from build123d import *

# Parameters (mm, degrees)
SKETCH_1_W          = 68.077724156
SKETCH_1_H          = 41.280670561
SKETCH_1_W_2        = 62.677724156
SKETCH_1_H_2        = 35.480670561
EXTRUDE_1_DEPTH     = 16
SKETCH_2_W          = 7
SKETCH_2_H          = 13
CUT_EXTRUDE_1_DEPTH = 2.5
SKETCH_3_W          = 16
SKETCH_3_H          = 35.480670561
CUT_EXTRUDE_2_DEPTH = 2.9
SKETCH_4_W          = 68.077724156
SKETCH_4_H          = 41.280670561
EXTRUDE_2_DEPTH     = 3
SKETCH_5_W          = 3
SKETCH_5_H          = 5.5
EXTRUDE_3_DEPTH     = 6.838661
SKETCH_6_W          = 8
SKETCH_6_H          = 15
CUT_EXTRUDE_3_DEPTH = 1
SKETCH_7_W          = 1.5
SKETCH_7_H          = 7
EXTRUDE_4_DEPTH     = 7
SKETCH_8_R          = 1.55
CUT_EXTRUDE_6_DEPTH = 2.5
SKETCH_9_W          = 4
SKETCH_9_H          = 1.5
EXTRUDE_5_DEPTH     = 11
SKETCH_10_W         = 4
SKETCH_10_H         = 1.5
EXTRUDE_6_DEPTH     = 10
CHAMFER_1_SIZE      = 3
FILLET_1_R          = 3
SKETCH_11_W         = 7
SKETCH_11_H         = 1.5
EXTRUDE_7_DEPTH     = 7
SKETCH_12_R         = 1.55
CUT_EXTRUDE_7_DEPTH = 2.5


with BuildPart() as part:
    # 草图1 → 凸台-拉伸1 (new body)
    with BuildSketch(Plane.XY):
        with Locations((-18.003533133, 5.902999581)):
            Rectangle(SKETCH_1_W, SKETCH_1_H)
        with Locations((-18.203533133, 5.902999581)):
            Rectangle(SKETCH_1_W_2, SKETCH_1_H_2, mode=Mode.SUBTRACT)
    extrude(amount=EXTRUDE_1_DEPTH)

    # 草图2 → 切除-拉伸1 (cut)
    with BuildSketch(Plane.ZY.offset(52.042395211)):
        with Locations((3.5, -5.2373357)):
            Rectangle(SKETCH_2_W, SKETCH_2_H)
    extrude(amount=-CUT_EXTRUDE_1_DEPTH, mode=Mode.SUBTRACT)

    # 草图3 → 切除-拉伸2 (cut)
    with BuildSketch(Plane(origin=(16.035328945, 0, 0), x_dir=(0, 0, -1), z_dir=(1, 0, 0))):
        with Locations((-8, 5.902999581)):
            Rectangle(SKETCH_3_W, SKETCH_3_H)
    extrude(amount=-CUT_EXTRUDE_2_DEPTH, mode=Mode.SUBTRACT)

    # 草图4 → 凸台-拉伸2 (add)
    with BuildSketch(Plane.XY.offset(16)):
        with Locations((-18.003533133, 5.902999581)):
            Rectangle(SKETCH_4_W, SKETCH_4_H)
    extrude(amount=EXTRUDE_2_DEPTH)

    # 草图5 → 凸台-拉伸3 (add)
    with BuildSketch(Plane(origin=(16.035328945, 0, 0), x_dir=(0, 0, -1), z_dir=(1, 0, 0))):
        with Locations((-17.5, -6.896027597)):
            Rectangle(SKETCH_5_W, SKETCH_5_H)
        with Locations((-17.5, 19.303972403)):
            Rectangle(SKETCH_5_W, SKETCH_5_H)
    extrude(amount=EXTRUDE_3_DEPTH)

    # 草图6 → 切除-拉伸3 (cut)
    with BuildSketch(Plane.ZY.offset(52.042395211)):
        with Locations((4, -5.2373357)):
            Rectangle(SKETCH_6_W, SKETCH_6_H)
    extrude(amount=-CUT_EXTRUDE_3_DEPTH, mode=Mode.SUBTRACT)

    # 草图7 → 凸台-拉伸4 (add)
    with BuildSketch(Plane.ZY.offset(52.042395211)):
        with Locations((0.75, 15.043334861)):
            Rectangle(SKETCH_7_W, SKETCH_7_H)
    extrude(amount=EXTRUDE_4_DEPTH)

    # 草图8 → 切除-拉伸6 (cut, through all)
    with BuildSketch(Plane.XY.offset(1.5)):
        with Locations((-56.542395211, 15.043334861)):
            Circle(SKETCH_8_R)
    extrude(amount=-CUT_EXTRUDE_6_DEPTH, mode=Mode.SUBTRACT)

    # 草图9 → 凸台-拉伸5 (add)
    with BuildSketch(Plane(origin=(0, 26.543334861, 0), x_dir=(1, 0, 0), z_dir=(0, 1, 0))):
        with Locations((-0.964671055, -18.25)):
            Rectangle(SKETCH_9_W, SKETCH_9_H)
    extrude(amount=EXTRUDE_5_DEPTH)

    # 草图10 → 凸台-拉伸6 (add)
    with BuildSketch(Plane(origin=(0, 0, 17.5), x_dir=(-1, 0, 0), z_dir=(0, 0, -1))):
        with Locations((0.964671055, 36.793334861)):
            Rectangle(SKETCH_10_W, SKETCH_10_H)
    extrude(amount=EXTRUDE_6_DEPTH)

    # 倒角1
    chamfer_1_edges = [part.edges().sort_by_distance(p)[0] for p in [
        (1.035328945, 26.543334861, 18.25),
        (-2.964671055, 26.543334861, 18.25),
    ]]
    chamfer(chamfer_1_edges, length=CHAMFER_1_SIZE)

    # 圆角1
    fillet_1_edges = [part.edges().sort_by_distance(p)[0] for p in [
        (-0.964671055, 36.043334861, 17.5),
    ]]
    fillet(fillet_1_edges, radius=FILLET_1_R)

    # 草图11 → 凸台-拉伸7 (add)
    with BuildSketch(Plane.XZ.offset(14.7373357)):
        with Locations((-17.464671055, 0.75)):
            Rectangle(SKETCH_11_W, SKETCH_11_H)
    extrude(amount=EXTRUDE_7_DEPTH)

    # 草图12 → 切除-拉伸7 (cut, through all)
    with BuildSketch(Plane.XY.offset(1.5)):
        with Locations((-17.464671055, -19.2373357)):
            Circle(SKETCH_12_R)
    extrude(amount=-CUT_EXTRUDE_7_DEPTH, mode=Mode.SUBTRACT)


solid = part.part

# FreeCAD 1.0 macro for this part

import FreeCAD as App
import Part
import Sketcher
Q = App.Units.Quantity


def edges_at(feature, points):
    """Names of the edges that pass closest to the given points."""
    edges = feature.Shape.Edges
    near = lambda p: min(range(len(edges)), key=lambda i: edges[i].distToShape(Part.Vertex(*p))[0])
    return sorted({f"Edge{near(p) + 1}" for p in points})

doc = App.newDocument("Part")
body = doc.addObject("PartDesign::Body", "Body")

# Sketch on XY plane
sketch1 = doc.addObject("Sketcher::SketchObject", "Sketch")
body.addObject(sketch1)
sketch1.AttachmentSupport = (doc.XY_Plane, [""])
sketch1.MapMode = "FlatFace"
sketch1.addGeometry(Part.LineSegment(App.Vector(-52, 27, 0), App.Vector(-52, -15, 0)), False)
sketch1.addGeometry(Part.LineSegment(App.Vector(-52, -15, 0), App.Vector(16, -15, 0)), False)
sketch1.addGeometry(Part.LineSegment(App.Vector(16, -15, 0), App.Vector(16, 27, 0)), False)
sketch1.addGeometry(Part.LineSegment(App.Vector(16, 27, 0), App.Vector(-52, 27, 0)), False)
sketch1.addGeometry(Part.LineSegment(App.Vector(13, -12, 0), App.Vector(-50, -12, 0)), False)
sketch1.addGeometry(Part.LineSegment(App.Vector(-50, -12, 0), App.Vector(-50, 24, 0)), False)
sketch1.addGeometry(Part.LineSegment(App.Vector(-50, 24, 0), App.Vector(13, 24, 0)), False)
sketch1.addGeometry(Part.LineSegment(App.Vector(13, 24, 0), App.Vector(13, -12, 0)), False)
sketch1.addConstraint(Sketcher.Constraint("Coincident", 0, 2, 1, 1))
sketch1.addConstraint(Sketcher.Constraint("Coincident", 1, 2, 2, 1))
sketch1.addConstraint(Sketcher.Constraint("Coincident", 2, 2, 3, 1))
sketch1.addConstraint(Sketcher.Constraint("Coincident", 3, 2, 0, 1))
sketch1.addConstraint(Sketcher.Constraint("Coincident", 4, 2, 5, 1))
sketch1.addConstraint(Sketcher.Constraint("Coincident", 5, 2, 6, 1))
sketch1.addConstraint(Sketcher.Constraint("Coincident", 6, 2, 7, 1))
sketch1.addConstraint(Sketcher.Constraint("Coincident", 7, 2, 4, 1))
sketch1.addConstraint(Sketcher.Constraint("Vertical", 0))
sketch1.addConstraint(Sketcher.Constraint("Horizontal", 1))
sketch1.addConstraint(Sketcher.Constraint("Vertical", 2))
sketch1.addConstraint(Sketcher.Constraint("Horizontal", 3))
sketch1.addConstraint(Sketcher.Constraint("Horizontal", 4))
sketch1.addConstraint(Sketcher.Constraint("Vertical", 5))
sketch1.addConstraint(Sketcher.Constraint("Horizontal", 6))
sketch1.addConstraint(Sketcher.Constraint("Vertical", 7))
sketch1.addConstraint(Sketcher.Constraint("DistanceX", 0, 2, 4, 2, Q("2.5 mm")))
sketch1.addConstraint(Sketcher.Constraint("DistanceY", 0, 2, 4, 2, Q("2.9 mm")))
sketch1.addConstraint(Sketcher.Constraint("DistanceY", 5, 2, 3, 2, Q("2.9 mm")))
sketch1.addConstraint(Sketcher.Constraint("DistanceX", 6, 2, 2, 2, Q("2.9 mm")))
sketch1.addConstraint(Sketcher.Constraint("DistanceY", 0, 2, 0, 1, Q("41.280671 mm")))
sketch1.addConstraint(Sketcher.Constraint("DistanceX", 1, 1, 1, 2, Q("68.077724 mm")))
sketch1.addConstraint(Sketcher.Constraint("DistanceX", -1, 1, 1, 2, Q("16.035329 mm")))
sketch1.addConstraint(Sketcher.Constraint("DistanceY", 0, 2, -1, 1, Q("14.737336 mm")))
pad1 = doc.addObject("PartDesign::Pad", "Pad")
body.addObject(pad1)
pad1.Profile = sketch1
pad1.Length = 16

# Sketch on YZ plane
sketch2 = doc.addObject("Sketcher::SketchObject", "Sketch001")
body.addObject(sketch2)
sketch2.AttachmentSupport = (doc.YZ_Plane, [""])
sketch2.MapMode = "FlatFace"
sketch2.AttachmentOffset = App.Placement(App.Vector(0, 0, -52.042395), App.Rotation())
sketch2.addGeometry(Part.LineSegment(App.Vector(1, 0, 0), App.Vector(-12, 0, 0)), False)
sketch2.addGeometry(Part.LineSegment(App.Vector(-12, 0, 0), App.Vector(-12, 7, 0)), False)
sketch2.addGeometry(Part.LineSegment(App.Vector(-12, 7, 0), App.Vector(1, 7, 0)), False)
sketch2.addGeometry(Part.LineSegment(App.Vector(1, 7, 0), App.Vector(1, 0, 0)), False)
sketch2.addConstraint(Sketcher.Constraint("Coincident", 0, 2, 1, 1))
sketch2.addConstraint(Sketcher.Constraint("Coincident", 1, 2, 2, 1))
sketch2.addConstraint(Sketcher.Constraint("Coincident", 2, 2, 3, 1))
sketch2.addConstraint(Sketcher.Constraint("Coincident", 3, 2, 0, 1))
sketch2.addConstraint(Sketcher.Constraint("Horizontal", 0))
sketch2.addConstraint(Sketcher.Constraint("Vertical", 1))
sketch2.addConstraint(Sketcher.Constraint("Horizontal", 2))
sketch2.addConstraint(Sketcher.Constraint("Vertical", 3))
sketch2.addConstraint(Sketcher.Constraint("PointOnObject", 0, 2, -1))
sketch2.addConstraint(Sketcher.Constraint("DistanceX", 0, 2, 0, 1, Q("13 mm")))
sketch2.addConstraint(Sketcher.Constraint("DistanceY", 1, 1, 1, 2, Q("7 mm")))
sketch2.addConstraint(Sketcher.Constraint("DistanceX", 0, 2, -1, 1, Q("11.737336 mm")))
pocket1 = doc.addObject("PartDesign::Pocket", "Pocket")
body.addObject(pocket1)
pocket1.Profile = sketch2
pocket1.Length = 2.5
pocket1.Reversed = True

# Sketch on YZ plane
sketch3 = doc.addObject("Sketcher::SketchObject", "Sketch002")
body.addObject(sketch3)
sketch3.AttachmentSupport = (doc.YZ_Plane, [""])
sketch3.MapMode = "FlatFace"
sketch3.AttachmentOffset = App.Placement(App.Vector(0, 0, 16.035329), App.Rotation())
sketch3.addGeometry(Part.LineSegment(App.Vector(24, 16, 0), App.Vector(-12, 16, 0)), False)
sketch3.addGeometry(Part.LineSegment(App.Vector(-12, 16, 0), App.Vector(-12, 0, 0)), False)
sketch3.addGeometry(Part.LineSegment(App.Vector(-12, 0, 0), App.Vector(24, 0, 0)), False)
sketch3.addGeometry(Part.LineSegment(App.Vector(24, 0, 0), App.Vector(24, 16, 0)), False)
sketch3.addConstraint(Sketcher.Constraint("Coincident", 0, 2, 1, 1))
sketch3.addConstraint(Sketcher.Constraint("Coincident", 1, 2, 2, 1))
sketch3.addConstraint(Sketcher.Constraint("Coincident", 2, 2, 3, 1))
sketch3.addConstraint(Sketcher.Constraint("Coincident", 3, 2, 0, 1))
sketch3.addConstraint(Sketcher.Constraint("Horizontal", 0))
sketch3.addConstraint(Sketcher.Constraint("Vertical", 1))
sketch3.addConstraint(Sketcher.Constraint("Horizontal", 2))
sketch3.addConstraint(Sketcher.Constraint("Vertical", 3))
sketch3.addConstraint(Sketcher.Constraint("PointOnObject", 1, 2, -1))
sketch3.addConstraint(Sketcher.Constraint("DistanceY", 1, 2, 1, 1, Q("16 mm")))
sketch3.addConstraint(Sketcher.Constraint("DistanceX", 0, 2, 0, 1, Q("35.480671 mm")))
sketch3.addConstraint(Sketcher.Constraint("DistanceX", 0, 2, -1, 1, Q("11.837336 mm")))
pocket2 = doc.addObject("PartDesign::Pocket", "Pocket001")
body.addObject(pocket2)
pocket2.Profile = sketch3
pocket2.Length = 2.9

# Sketch on XY plane
sketch4 = doc.addObject("Sketcher::SketchObject", "Sketch003")
body.addObject(sketch4)
sketch4.AttachmentSupport = (doc.XY_Plane, [""])
sketch4.MapMode = "FlatFace"
sketch4.AttachmentOffset = App.Placement(App.Vector(0, 0, 16), App.Rotation())
sketch4.addGeometry(Part.LineSegment(App.Vector(-52, 27, 0), App.Vector(-52, -15, 0)), False)
sketch4.addGeometry(Part.LineSegment(App.Vector(-52, -15, 0), App.Vector(16, -15, 0)), False)
sketch4.addGeometry(Part.LineSegment(App.Vector(16, -15, 0), App.Vector(16, 27, 0)), False)
sketch4.addGeometry(Part.LineSegment(App.Vector(16, 27, 0), App.Vector(-52, 27, 0)), False)
sketch4.addConstraint(Sketcher.Constraint("Coincident", 0, 2, 1, 1))
sketch4.addConstraint(Sketcher.Constraint("Coincident", 1, 2, 2, 1))
sketch4.addConstraint(Sketcher.Constraint("Coincident", 2, 2, 3, 1))
sketch4.addConstraint(Sketcher.Constraint("Coincident", 3, 2, 0, 1))
sketch4.addConstraint(Sketcher.Constraint("Vertical", 0))
sketch4.addConstraint(Sketcher.Constraint("Horizontal", 1))
sketch4.addConstraint(Sketcher.Constraint("Vertical", 2))
sketch4.addConstraint(Sketcher.Constraint("Horizontal", 3))
sketch4.addConstraint(Sketcher.Constraint("DistanceY", 0, 2, 0, 1, Q("41.280671 mm")))
sketch4.addConstraint(Sketcher.Constraint("DistanceX", 1, 1, 1, 2, Q("68.077724 mm")))
sketch4.addConstraint(Sketcher.Constraint("DistanceX", -1, 1, 1, 2, Q("16.035329 mm")))
sketch4.addConstraint(Sketcher.Constraint("DistanceY", 0, 2, -1, 1, Q("14.737336 mm")))
pad2 = doc.addObject("PartDesign::Pad", "Pad001")
body.addObject(pad2)
pad2.Profile = sketch4
pad2.Length = 3

# Sketch on YZ plane
sketch5 = doc.addObject("Sketcher::SketchObject", "Sketch004")
body.addObject(sketch5)
sketch5.AttachmentSupport = (doc.YZ_Plane, [""])
sketch5.MapMode = "FlatFace"
sketch5.AttachmentOffset = App.Placement(App.Vector(0, 0, 16.035329), App.Rotation())
sketch5.addGeometry(Part.LineSegment(App.Vector(-4.1, 19, 0), App.Vector(-9.6, 19, 0)), False)
sketch5.addGeometry(Part.LineSegment(App.Vector(-9.6, 19, 0), App.Vector(-9.6, 16, 0)), False)
sketch5.addGeometry(Part.LineSegment(App.Vector(-9.6, 16, 0), App.Vector(-4.1, 16, 0)), False)
sketch5.addGeometry(Part.LineSegment(App.Vector(-4.1, 16, 0), App.Vector(-4.1, 19, 0)), False)
sketch5.addGeometry(Part.LineSegment(App.Vector(22.1, 19, 0), App.Vector(16.6, 19, 0)), False)
sketch5.addGeometry(Part.LineSegment(App.Vector(16.6, 19, 0), App.Vector(16.6, 16, 0)), False)
sketch5.addGeometry(Part.LineSegment(App.Vector(16.6, 16, 0), App.Vector(22.1, 16, 0)), False)
sketch5.addGeometry(Part.LineSegment(App.Vector(22.1, 16, 0), App.Vector(22.1, 19, 0)), False)
sketch5.addConstraint(Sketcher.Constraint("Coincident", 0, 2, 1, 1))
sketch5.addConstraint(Sketcher.Constraint("Coincident", 1, 2, 2, 1))
sketch5.addConstraint(Sketcher.Constraint("Coincident", 2, 2, 3, 1))
sketch5.addConstraint(Sketcher.Constraint("Coincident", 3, 2, 0, 1))
sketch5.addConstraint(Sketcher.Constraint("Coincident", 4, 2, 5, 1))
sketch5.addConstraint(Sketcher.Constraint("Coincident", 5, 2, 6, 1))
sketch5.addConstraint(Sketcher.Constraint("Coincident", 6, 2, 7, 1))
sketch5.addConstraint(Sketcher.Constraint("Coincident", 7, 2, 4, 1))
sketch5.addConstraint(Sketcher.Constraint("Horizontal", 0))
sketch5.addConstraint(Sketcher.Constraint("Vertical", 1))
sketch5.addConstraint(Sketcher.Constraint("Horizontal", 2))
sketch5.addConstraint(Sketcher.Constraint("Vertical", 3))
sketch5.addConstraint(Sketcher.Constraint("Horizontal", 4))
sketch5.addConstraint(Sketcher.Constraint("Vertical", 5))
sketch5.addConstraint(Sketcher.Constraint("Horizontal", 6))
sketch5.addConstraint(Sketcher.Constraint("Vertical", 7))
sketch5.addConstraint(Sketcher.Constraint("Horizontal", 3, 2, 4, 2))
sketch5.addConstraint(Sketcher.Constraint("Horizontal", 2, 2, 5, 2))
sketch5.addConstraint(Sketcher.Constraint("Equal", 2, 4))
sketch5.addConstraint(Sketcher.Constraint("DistanceY", 1, 2, 1, 1, Q("3 mm")))
sketch5.addConstraint(Sketcher.Constraint("DistanceX", 0, 2, 0, 1, Q("5.5 mm")))
sketch5.addConstraint(Sketcher.Constraint("DistanceY", -1, 1, 0, 2, Q("19 mm")))
sketch5.addConstraint(Sketcher.Constraint("DistanceX", 3, 2, 4, 2, Q("20.7 mm")))
sketch5.addConstraint(Sketcher.Constraint("DistanceX", 0, 2, -1, 1, Q("9.646028 mm")))
pad3 = doc.addObject("PartDesign::Pad", "Pad002")
body.addObject(pad3)
pad3.Profile = sketch5
pad3.Length = 6.838661

# Sketch on YZ plane
sketch6 = doc.addObject("Sketcher::SketchObject", "Sketch005")
body.addObject(sketch6)
sketch6.AttachmentSupport = (doc.YZ_Plane, [""])
sketch6.MapMode = "FlatFace"
sketch6.AttachmentOffset = App.Placement(App.Vector(0, 0, -52.042395), App.Rotation())
sketch6.addGeometry(Part.LineSegment(App.Vector(2, 0, 0), App.Vector(-13, 0, 0)), False)
sketch6.addGeometry(Part.LineSegment(App.Vector(-13, 0, 0), App.Vector(-13, 8, 0)), False)
sketch6.addGeometry(Part.LineSegment(App.Vector(-13, 8, 0), App.Vector(2, 8, 0)), False)
sketch6.addGeometry(Part.LineSegment(App.Vector(2, 8, 0), App.Vector(2, 0, 0)), False)
sketch6.addConstraint(Sketcher.Constraint("Coincident", 0, 2, 1, 1))
sketch6.addConstraint(Sketcher.Constraint("Coincident", 1, 2, 2, 1))
sketch6.addConstraint(Sketcher.Constraint("Coincident", 2, 2, 3, 1))
sketch6.addConstraint(Sketcher.Constraint("Coincident", 3, 2, 0, 1))
sketch6.addConstraint(Sketcher.Constraint("Horizontal", 0))
sketch6.addConstraint(Sketcher.Constraint("Vertical", 1))
sketch6.addConstraint(Sketcher.Constraint("Horizontal", 2))
sketch6.addConstraint(Sketcher.Constraint("Vertical", 3))
sketch6.addConstraint(Sketcher.Constraint("PointOnObject", 0, 2, -1))
sketch6.addConstraint(Sketcher.Constraint("DistanceX", 0, 2, 0, 1, Q("15 mm")))
sketch6.addConstraint(Sketcher.Constraint("DistanceY", 1, 1, 1, 2, Q("8 mm")))
sketch6.addConstraint(Sketcher.Constraint("DistanceX", 0, 2, -1, 1, Q("12.737336 mm")))
pocket3 = doc.addObject("PartDesign::Pocket", "Pocket002")
body.addObject(pocket3)
pocket3.Profile = sketch6
pocket3.Length = 1
pocket3.Reversed = True

# Sketch on YZ plane
sketch7 = doc.addObject("Sketcher::SketchObject", "Sketch006")
body.addObject(sketch7)
sketch7.AttachmentSupport = (doc.YZ_Plane, [""])
sketch7.MapMode = "FlatFace"
sketch7.AttachmentOffset = App.Placement(App.Vector(0, 0, -52.042395), App.Rotation())
sketch7.addGeometry(Part.LineSegment(App.Vector(18.5, 0, 0), App.Vector(11.5, 0, 0)), False)
sketch7.addGeometry(Part.LineSegment(App.Vector(11.5, 0, 0), App.Vector(11.5, 1.5, 0)), False)
sketch7.addGeometry(Part.LineSegment(App.Vector(11.5, 1.5, 0), App.Vector(18.5, 1.5, 0)), False)
sketch7.addGeometry(Part.LineSegment(App.Vector(18.5, 1.5, 0), App.Vector(18.5, 0, 0)), False)
sketch7.addConstraint(Sketcher.Constraint("Coincident", 0, 2, 1, 1))
sketch7.addConstraint(Sketcher.Constraint("Coincident", 1, 2, 2, 1))
sketch7.addConstraint(Sketcher.Constraint("Coincident", 2, 2, 3, 1))
sketch7.addConstraint(Sketcher.Constraint("Coincident", 3, 2, 0, 1))
sketch7.addConstraint(Sketcher.Constraint("Horizontal", 0))
sketch7.addConstraint(Sketcher.Constraint("Vertical", 1))
sketch7.addConstraint(Sketcher.Constraint("Horizontal", 2))
sketch7.addConstraint(Sketcher.Constraint("Vertical", 3))
sketch7.addConstraint(Sketcher.Constraint("PointOnObject", 0, 2, -1))
sketch7.addConstraint(Sketcher.Constraint("DistanceX", 0, 2, 0, 1, Q("7 mm")))
sketch7.addConstraint(Sketcher.Constraint("DistanceY", 1, 1, 1, 2, Q("1.5 mm")))
sketch7.addConstraint(Sketcher.Constraint("DistanceX", -1, 1, 0, 2, Q("11.543335 mm")))
pad4 = doc.addObject("PartDesign::Pad", "Pad003")
body.addObject(pad4)
pad4.Profile = sketch7
pad4.Length = 7
pad4.Reversed = True

# Sketch on XY plane
sketch8 = doc.addObject("Sketcher::SketchObject", "Sketch007")
body.addObject(sketch8)
sketch8.AttachmentSupport = (doc.XY_Plane, [""])
sketch8.MapMode = "FlatFace"
sketch8.AttachmentOffset = App.Placement(App.Vector(0, 0, 1.5), App.Rotation())
sketch8.addGeometry(Part.Circle(App.Vector(-56.5, 15, 0), App.Vector(0, 0, 1), 1.6), False)
sketch8.addConstraint(Sketcher.Constraint("Diameter", 0, Q("3.1 mm")))
sketch8.addConstraint(Sketcher.Constraint("DistanceX", 0, 3, -1, 1, Q("56.542395 mm")))
sketch8.addConstraint(Sketcher.Constraint("DistanceY", -1, 1, 0, 3, Q("15.043335 mm")))
pocket4 = doc.addObject("PartDesign::Pocket", "Pocket003")
body.addObject(pocket4)
pocket4.Profile = sketch8
pocket4.Type = "ThroughAll"

# Sketch on XZ plane
sketch9 = doc.addObject("Sketcher::SketchObject", "Sketch008")
body.addObject(sketch9)
sketch9.AttachmentSupport = (doc.XZ_Plane, [""])
sketch9.MapMode = "FlatFace"
sketch9.AttachmentOffset = App.Placement(App.Vector(0, 0, -26.543335), App.Rotation())
sketch9.addGeometry(Part.LineSegment(App.Vector(-3, 17.5, 0), App.Vector(-3, 19, 0)), False)
sketch9.addGeometry(Part.LineSegment(App.Vector(-3, 19, 0), App.Vector(1, 19, 0)), False)
sketch9.addGeometry(Part.LineSegment(App.Vector(1, 19, 0), App.Vector(1, 17.5, 0)), False)
sketch9.addGeometry(Part.LineSegment(App.Vector(1, 17.5, 0), App.Vector(-3, 17.5, 0)), False)
sketch9.addConstraint(Sketcher.Constraint("Coincident", 0, 2, 1, 1))
sketch9.addConstraint(Sketcher.Constraint("Coincident", 1, 2, 2, 1))
sketch9.addConstraint(Sketcher.Constraint("Coincident", 2, 2, 3, 1))
sketch9.addConstraint(Sketcher.Constraint("Coincident", 3, 2, 0, 1))
sketch9.addConstraint(Sketcher.Constraint("Vertical", 0))
sketch9.addConstraint(Sketcher.Constraint("Horizontal", 1))
sketch9.addConstraint(Sketcher.Constraint("Vertical", 2))
sketch9.addConstraint(Sketcher.Constraint("Horizontal", 3))
sketch9.addConstraint(Sketcher.Constraint("DistanceX", 1, 1, 1, 2, Q("4 mm")))
sketch9.addConstraint(Sketcher.Constraint("DistanceY", 0, 1, 0, 2, Q("1.5 mm")))
sketch9.addConstraint(Sketcher.Constraint("DistanceY", -1, 1, 0, 2, Q("19 mm")))
sketch9.addConstraint(Sketcher.Constraint("DistanceX", 0, 2, -1, 1, Q("2.964671 mm")))
pad5 = doc.addObject("PartDesign::Pad", "Pad004")
body.addObject(pad5)
pad5.Profile = sketch9
pad5.Length = 11
pad5.Reversed = True

# Sketch on XY plane
sketch10 = doc.addObject("Sketcher::SketchObject", "Sketch009")
body.addObject(sketch10)
sketch10.AttachmentSupport = (doc.XY_Plane, [""])
sketch10.MapMode = "FlatFace"
sketch10.AttachmentOffset = App.Placement(App.Vector(0, 0, 17.5), App.Rotation())
sketch10.addGeometry(Part.LineSegment(App.Vector(1, 37.5, 0), App.Vector(1, 36, 0)), False)
sketch10.addGeometry(Part.LineSegment(App.Vector(1, 36, 0), App.Vector(-3, 36, 0)), False)
sketch10.addGeometry(Part.LineSegment(App.Vector(-3, 36, 0), App.Vector(-3, 37.5, 0)), False)
sketch10.addGeometry(Part.LineSegment(App.Vector(-3, 37.5, 0), App.Vector(1, 37.5, 0)), False)
sketch10.addConstraint(Sketcher.Constraint("Coincident", 0, 2, 1, 1))
sketch10.addConstraint(Sketcher.Constraint("Coincident", 1, 2, 2, 1))
sketch10.addConstraint(Sketcher.Constraint("Coincident", 2, 2, 3, 1))
sketch10.addConstraint(Sketcher.Constraint("Coincident", 3, 2, 0, 1))
sketch10.addConstraint(Sketcher.Constraint("Vertical", 0))
sketch10.addConstraint(Sketcher.Constraint("Horizontal", 1))
sketch10.addConstraint(Sketcher.Constraint("Vertical", 2))
sketch10.addConstraint(Sketcher.Constraint("Horizontal", 3))
sketch10.addConstraint(Sketcher.Constraint("DistanceX", 1, 2, 1, 1, Q("4 mm")))
sketch10.addConstraint(Sketcher.Constraint("DistanceY", 0, 2, 0, 1, Q("1.5 mm")))
sketch10.addConstraint(Sketcher.Constraint("DistanceX", -1, 1, 0, 2, Q("1.035329 mm")))
sketch10.addConstraint(Sketcher.Constraint("DistanceY", -1, 1, 0, 2, Q("36.043335 mm")))
pad6 = doc.addObject("PartDesign::Pad", "Pad005")
body.addObject(pad6)
pad6.Profile = sketch10
pad6.Length = 10
pad6.Reversed = True
doc.recompute()

chamfer = doc.addObject("PartDesign::Chamfer", "Chamfer")
body.addObject(chamfer)
chamfer.Base = (pad6, edges_at(pad6, [(1.035, 26.543, 18.25), (-2.965, 26.543, 18.25)]))
chamfer.Size = 3
doc.recompute()

fillet = doc.addObject("PartDesign::Fillet", "Fillet")
body.addObject(fillet)
fillet.Base = (chamfer, edges_at(chamfer, [(-0.965, 36.043, 17.5)]))
fillet.Radius = 3

# Sketch on XZ plane
sketch11 = doc.addObject("Sketcher::SketchObject", "Sketch010")
body.addObject(sketch11)
sketch11.AttachmentSupport = (doc.XZ_Plane, [""])
sketch11.MapMode = "FlatFace"
sketch11.AttachmentOffset = App.Placement(App.Vector(0, 0, 14.737336), App.Rotation())
sketch11.addGeometry(Part.LineSegment(App.Vector(-21, 1.5, 0), App.Vector(-21, 0, 0)), False)
sketch11.addGeometry(Part.LineSegment(App.Vector(-21, 0, 0), App.Vector(-14, 0, 0)), False)
sketch11.addGeometry(Part.LineSegment(App.Vector(-14, 0, 0), App.Vector(-14, 1.5, 0)), False)
sketch11.addGeometry(Part.LineSegment(App.Vector(-14, 1.5, 0), App.Vector(-21, 1.5, 0)), False)
sketch11.addConstraint(Sketcher.Constraint("Coincident", 0, 2, 1, 1))
sketch11.addConstraint(Sketcher.Constraint("Coincident", 1, 2, 2, 1))
sketch11.addConstraint(Sketcher.Constraint("Coincident", 2, 2, 3, 1))
sketch11.addConstraint(Sketcher.Constraint("Coincident", 3, 2, 0, 1))
sketch11.addConstraint(Sketcher.Constraint("Vertical", 0))
sketch11.addConstraint(Sketcher.Constraint("Horizontal", 1))
sketch11.addConstraint(Sketcher.Constraint("Vertical", 2))
sketch11.addConstraint(Sketcher.Constraint("Horizontal", 3))
sketch11.addConstraint(Sketcher.Constraint("PointOnObject", 0, 2, -1))
sketch11.addConstraint(Sketcher.Constraint("DistanceX", 1, 1, 1, 2, Q("7 mm")))
sketch11.addConstraint(Sketcher.Constraint("DistanceY", 0, 2, 0, 1, Q("1.5 mm")))
sketch11.addConstraint(Sketcher.Constraint("DistanceX", 0, 2, -1, 1, Q("20.964671 mm")))
pad7 = doc.addObject("PartDesign::Pad", "Pad006")
body.addObject(pad7)
pad7.Profile = sketch11
pad7.Length = 7

# Sketch on XY plane
sketch12 = doc.addObject("Sketcher::SketchObject", "Sketch011")
body.addObject(sketch12)
sketch12.AttachmentSupport = (doc.XY_Plane, [""])
sketch12.MapMode = "FlatFace"
sketch12.AttachmentOffset = App.Placement(App.Vector(0, 0, 1.5), App.Rotation())
sketch12.addGeometry(Part.Circle(App.Vector(-17.5, -19.2, 0), App.Vector(0, 0, 1), 1.6), False)
sketch12.addConstraint(Sketcher.Constraint("Diameter", 0, Q("3.1 mm")))
sketch12.addConstraint(Sketcher.Constraint("DistanceX", 0, 3, -1, 1, Q("17.464671 mm")))
sketch12.addConstraint(Sketcher.Constraint("DistanceY", 0, 3, -1, 1, Q("19.237336 mm")))
pocket5 = doc.addObject("PartDesign::Pocket", "Pocket004")
body.addObject(pocket5)
pocket5.Profile = sketch12
pocket5.Type = "ThroughAll"

doc.recompute()
